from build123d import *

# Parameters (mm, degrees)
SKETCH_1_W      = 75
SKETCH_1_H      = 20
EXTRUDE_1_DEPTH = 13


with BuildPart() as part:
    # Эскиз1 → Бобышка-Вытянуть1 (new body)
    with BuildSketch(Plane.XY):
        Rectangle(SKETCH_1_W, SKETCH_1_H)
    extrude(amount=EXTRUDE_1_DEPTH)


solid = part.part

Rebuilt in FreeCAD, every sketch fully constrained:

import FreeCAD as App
import Part
import Sketcher
from FreeCAD import Vector


def add_polygon(sketch, points):
    """Adds a closed chain of lines whose ends are joined by coincident constraints."""
    first, n = sketch.GeometryCount, len(points)
    for a, b in zip(points, points[1:] + points[:1]):
        sketch.addGeometry(Part.LineSegment(App.Vector(*a, 0), App.Vector(*b, 0)), False)
    for i in range(n):
        sketch.addConstraint(Sketcher.Constraint("Coincident", first + i, 2, first + (i + 1) % n, 1))

doc = App.newDocument("Part")
body = doc.addObject("PartDesign::Body", "Body")

# Sketch on XY plane
sketch1 = doc.addObject("Sketcher::SketchObject", "Sketch")
body.addObject(sketch1)
sketch1.AttachmentSupport = (doc.XY_Plane, [""])
sketch1.MapMode = "FlatFace"
add_polygon(sketch1, [(-37.5, 10), (-37.5, -10), (37.5, -10), (37.5, 10)])  # lines 0-3
sketch1.addConstraint([
    Sketcher.Constraint("Vertical", 0),
    Sketcher.Constraint("Horizontal", 1),
    Sketcher.Constraint("Vertical", 2),
    Sketcher.Constraint("Horizontal", 3),
    Sketcher.Constraint("Symmetric", 0, 2, 2, 2, -1, 1),
    Sketcher.Constraint("DistanceX", 1, 1, 1, 2, 75.0),
    Sketcher.Constraint("DistanceY", 0, 2, 0, 1, 20.0),
])
pad1 = doc.addObject("PartDesign::Pad", "Pad")
body.addObject(pad1)
pad1.Profile = sketch1
pad1.Length = 13

doc.recompute()
